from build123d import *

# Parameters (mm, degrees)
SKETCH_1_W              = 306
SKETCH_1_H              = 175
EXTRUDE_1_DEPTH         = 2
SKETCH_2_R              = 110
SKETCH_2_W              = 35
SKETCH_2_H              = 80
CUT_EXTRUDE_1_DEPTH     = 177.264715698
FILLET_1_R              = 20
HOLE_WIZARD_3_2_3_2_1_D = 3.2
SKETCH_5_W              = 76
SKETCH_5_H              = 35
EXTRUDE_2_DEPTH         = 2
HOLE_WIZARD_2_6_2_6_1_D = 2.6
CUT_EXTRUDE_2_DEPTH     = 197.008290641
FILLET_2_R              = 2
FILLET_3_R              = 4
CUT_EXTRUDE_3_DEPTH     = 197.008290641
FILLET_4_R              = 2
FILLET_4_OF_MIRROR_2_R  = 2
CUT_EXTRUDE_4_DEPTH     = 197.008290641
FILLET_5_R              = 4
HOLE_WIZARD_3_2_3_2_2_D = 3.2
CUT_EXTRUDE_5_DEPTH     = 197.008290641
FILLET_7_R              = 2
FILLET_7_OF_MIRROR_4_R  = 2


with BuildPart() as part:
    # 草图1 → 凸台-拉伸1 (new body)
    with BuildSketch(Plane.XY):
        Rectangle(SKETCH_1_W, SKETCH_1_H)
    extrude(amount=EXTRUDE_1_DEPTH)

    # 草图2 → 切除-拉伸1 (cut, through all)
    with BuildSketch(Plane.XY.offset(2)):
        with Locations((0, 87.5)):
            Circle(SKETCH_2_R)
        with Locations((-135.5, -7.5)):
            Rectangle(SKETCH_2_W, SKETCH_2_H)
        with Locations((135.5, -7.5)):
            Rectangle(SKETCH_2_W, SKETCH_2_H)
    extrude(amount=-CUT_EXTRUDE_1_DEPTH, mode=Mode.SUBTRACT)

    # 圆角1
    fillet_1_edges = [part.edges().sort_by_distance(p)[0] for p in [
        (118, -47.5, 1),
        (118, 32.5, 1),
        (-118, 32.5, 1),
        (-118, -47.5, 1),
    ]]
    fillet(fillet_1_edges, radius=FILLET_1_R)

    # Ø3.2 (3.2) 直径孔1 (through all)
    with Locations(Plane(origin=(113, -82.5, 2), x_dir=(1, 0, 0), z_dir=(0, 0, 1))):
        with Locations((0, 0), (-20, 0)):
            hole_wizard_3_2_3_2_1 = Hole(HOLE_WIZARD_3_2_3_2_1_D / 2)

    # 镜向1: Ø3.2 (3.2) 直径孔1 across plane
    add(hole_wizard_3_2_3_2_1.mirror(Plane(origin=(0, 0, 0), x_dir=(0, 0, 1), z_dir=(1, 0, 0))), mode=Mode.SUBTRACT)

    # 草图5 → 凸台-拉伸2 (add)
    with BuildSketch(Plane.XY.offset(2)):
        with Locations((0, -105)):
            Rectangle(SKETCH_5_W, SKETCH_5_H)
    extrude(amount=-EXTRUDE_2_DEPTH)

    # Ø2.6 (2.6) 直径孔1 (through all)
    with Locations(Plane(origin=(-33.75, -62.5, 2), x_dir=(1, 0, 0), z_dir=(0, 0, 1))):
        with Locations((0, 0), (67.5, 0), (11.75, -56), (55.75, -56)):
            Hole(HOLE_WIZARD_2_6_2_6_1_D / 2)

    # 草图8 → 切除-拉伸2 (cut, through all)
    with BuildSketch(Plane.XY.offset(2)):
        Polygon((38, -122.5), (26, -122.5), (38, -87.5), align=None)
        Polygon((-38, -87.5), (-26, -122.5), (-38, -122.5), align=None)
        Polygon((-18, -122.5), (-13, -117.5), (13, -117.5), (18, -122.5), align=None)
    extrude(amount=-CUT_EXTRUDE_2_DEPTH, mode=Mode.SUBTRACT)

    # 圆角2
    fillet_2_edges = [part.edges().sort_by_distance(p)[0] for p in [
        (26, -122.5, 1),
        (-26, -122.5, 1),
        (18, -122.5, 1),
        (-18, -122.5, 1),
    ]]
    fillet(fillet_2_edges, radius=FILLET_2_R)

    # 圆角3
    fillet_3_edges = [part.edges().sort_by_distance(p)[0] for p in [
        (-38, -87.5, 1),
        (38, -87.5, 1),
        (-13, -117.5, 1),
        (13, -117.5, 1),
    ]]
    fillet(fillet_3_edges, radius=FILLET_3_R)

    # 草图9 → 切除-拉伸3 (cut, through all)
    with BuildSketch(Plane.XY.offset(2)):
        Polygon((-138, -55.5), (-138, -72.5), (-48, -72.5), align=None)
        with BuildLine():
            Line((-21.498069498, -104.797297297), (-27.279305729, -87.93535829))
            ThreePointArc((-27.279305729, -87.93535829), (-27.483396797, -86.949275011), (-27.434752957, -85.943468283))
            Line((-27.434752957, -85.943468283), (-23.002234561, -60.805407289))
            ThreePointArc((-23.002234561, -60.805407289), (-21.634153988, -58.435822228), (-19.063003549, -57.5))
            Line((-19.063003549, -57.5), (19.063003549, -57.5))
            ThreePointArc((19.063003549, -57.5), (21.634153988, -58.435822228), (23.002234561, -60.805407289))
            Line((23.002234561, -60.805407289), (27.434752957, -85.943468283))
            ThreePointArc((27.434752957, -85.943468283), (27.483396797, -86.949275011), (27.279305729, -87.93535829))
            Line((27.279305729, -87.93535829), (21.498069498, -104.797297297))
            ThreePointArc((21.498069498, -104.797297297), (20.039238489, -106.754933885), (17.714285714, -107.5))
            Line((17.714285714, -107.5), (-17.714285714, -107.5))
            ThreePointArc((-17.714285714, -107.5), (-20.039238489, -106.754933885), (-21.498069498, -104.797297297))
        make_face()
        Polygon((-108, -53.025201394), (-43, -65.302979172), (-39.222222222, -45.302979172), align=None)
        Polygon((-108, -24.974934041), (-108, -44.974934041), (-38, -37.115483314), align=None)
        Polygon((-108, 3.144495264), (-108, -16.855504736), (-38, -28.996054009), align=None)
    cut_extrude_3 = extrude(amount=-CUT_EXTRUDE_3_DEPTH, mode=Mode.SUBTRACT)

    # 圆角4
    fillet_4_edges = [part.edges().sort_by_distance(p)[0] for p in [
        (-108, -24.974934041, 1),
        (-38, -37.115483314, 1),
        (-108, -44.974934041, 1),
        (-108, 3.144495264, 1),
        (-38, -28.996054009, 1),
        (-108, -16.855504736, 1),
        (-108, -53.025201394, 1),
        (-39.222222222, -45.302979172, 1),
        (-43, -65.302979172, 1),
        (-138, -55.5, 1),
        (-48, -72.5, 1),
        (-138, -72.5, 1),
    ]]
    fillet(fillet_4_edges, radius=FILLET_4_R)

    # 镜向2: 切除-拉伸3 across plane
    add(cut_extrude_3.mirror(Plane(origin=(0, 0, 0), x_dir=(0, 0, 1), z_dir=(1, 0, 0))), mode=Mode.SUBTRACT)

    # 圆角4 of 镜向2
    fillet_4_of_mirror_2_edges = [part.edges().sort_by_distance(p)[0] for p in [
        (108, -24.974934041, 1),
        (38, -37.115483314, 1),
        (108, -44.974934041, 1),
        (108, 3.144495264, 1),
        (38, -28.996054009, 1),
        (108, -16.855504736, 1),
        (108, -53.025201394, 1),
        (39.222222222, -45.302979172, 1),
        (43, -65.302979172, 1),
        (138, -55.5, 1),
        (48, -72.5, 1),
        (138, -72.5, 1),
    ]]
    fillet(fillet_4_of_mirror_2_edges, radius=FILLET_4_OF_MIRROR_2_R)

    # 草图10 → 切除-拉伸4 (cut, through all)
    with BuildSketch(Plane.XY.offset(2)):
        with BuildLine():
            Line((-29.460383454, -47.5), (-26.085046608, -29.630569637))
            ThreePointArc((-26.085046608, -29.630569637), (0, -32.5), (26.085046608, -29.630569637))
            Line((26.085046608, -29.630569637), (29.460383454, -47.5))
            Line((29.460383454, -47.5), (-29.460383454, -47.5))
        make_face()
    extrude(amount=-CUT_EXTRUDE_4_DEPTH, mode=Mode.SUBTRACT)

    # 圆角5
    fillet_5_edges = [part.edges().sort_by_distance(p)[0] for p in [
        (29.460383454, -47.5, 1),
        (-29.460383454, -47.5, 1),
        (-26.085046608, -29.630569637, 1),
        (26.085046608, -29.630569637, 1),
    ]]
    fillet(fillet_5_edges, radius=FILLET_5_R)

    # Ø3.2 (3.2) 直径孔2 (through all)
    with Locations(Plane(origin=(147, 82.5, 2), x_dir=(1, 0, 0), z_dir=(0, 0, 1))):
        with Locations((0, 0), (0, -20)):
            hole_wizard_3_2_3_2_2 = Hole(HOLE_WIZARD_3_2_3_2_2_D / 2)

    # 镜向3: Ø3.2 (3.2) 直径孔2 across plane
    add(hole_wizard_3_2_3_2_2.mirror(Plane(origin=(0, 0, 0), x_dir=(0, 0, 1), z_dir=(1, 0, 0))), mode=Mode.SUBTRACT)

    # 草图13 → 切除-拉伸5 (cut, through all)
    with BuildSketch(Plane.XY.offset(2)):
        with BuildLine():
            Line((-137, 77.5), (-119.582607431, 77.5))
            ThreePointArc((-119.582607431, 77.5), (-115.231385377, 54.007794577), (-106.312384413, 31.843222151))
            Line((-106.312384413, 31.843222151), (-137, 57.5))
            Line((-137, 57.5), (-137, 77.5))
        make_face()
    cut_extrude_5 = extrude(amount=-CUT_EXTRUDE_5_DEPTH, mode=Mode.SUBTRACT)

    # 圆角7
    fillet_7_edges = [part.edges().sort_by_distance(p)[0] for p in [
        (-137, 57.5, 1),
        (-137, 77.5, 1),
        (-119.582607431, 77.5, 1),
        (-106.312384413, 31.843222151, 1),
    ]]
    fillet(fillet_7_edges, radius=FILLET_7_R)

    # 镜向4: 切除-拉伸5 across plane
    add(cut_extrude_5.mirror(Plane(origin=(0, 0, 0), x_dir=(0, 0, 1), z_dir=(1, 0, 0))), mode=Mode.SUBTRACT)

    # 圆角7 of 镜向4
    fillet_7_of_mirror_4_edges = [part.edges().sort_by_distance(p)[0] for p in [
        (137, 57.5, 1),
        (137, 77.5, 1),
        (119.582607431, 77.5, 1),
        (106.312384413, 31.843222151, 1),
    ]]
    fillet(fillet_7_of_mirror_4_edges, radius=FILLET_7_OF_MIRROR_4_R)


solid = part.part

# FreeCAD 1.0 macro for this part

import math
import FreeCAD as App
import Part
import Sketcher

V = App.Vector
Q = App.Units.Quantity


def edges_at(feature, points):
    """Names of the edges that pass closest to the given points."""
    edges = feature.Shape.Edges
    near = lambda p: min(range(len(edges)), key=lambda i: edges[i].distToShape(Part.Vertex(*p))[0])
    return sorted({f"Edge{near(p) + 1}" for p in points})


def add_polygon(sketch, points):
    """Adds a closed chain of lines whose ends are joined by coincident constraints."""
    first, n = sketch.GeometryCount, len(points)
    for a, b in zip(points, points[1:] + points[:1]):
        sketch.addGeometry(Part.LineSegment(App.Vector(*a, 0), App.Vector(*b, 0)), False)
    for i in range(n):
        sketch.addConstraint(Sketcher.Constraint("Coincident", first + i, 2, first + (i + 1) % n, 1))

doc = App.newDocument("Part")
body = doc.addObject("PartDesign::Body", "Body")

sketch1 = body.newObject("Sketcher::SketchObject", "Sketch")
sketch1.AttachmentSupport = (doc.getObject("XY_Plane"), [""])
sketch1.MapMode = "FlatFace"
add_polygon(sketch1, [(-153, 88), (-153, -88), (153, -88), (153, 88)])
sketch1.addConstraint([
    Sketcher.Constraint("Vertical", 0),
    Sketcher.Constraint("Horizontal", 1),
    Sketcher.Constraint("Vertical", 2),
    Sketcher.Constraint("Horizontal", 3),
    Sketcher.Constraint("Symmetric", 0, 2, 2, 2, -1, 1),
    Sketcher.Constraint("DistanceX", 1, 1, 1, 2, Q("306 mm")),
    Sketcher.Constraint("DistanceY", 0, 2, 0, 1, Q("175 mm")),
])
pad1 = body.newObject("PartDesign::Pad", "Pad")
pad1.Profile = sketch1
pad1.Length = 2

sketch2 = body.newObject("Sketcher::SketchObject", "Sketch001")
sketch2.AttachmentSupport = (doc.getObject("XY_Plane"), [""])
sketch2.MapMode = "FlatFace"
sketch2.AttachmentOffset = App.Placement(V(0, 0, 2), App.Rotation())
sketch2.addGeometry(Part.Circle(V(0, 88, 0), V(0, 0, 1), 110), False)
add_polygon(sketch2, [(-153, 32), (-153, -48), (-118, -48), (-118, 32)])
add_polygon(sketch2, [(118, 32), (118, -48), (153, -48), (153, 32)])
sketch2.addConstraint([
    Sketcher.Constraint("Vertical", 1),
    Sketcher.Constraint("Horizontal", 2),
    Sketcher.Constraint("Vertical", 3),
    Sketcher.Constraint("Horizontal", 4),
    Sketcher.Constraint("Vertical", 5),
    Sketcher.Constraint("Horizontal", 6),
    Sketcher.Constraint("Vertical", 7),
    Sketcher.Constraint("Horizontal", 8),
    Sketcher.Constraint("Symmetric", 2, 2, 5, 2, -2),
    Sketcher.Constraint("Symmetric", 4, 2, 7, 2, -2),
    Sketcher.Constraint("PointOnObject", 0, 3, -2),
    Sketcher.Constraint("Diameter", 0, Q("220 mm")),
    Sketcher.Constraint("DistanceX", 2, 1, 2, 2, Q("35 mm")),
    Sketcher.Constraint("DistanceY", 1, 2, 1, 1, Q("80 mm")),
    Sketcher.Constraint("DistanceX", 1, 2, -1, 1, Q("153 mm")),
    Sketcher.Constraint("DistanceY", 1, 2, 0, 3, Q("135 mm")),
    Sketcher.Constraint("DistanceY", -1, 1, 0, 3, Q("87.5 mm")),
])
pocket1 = body.newObject("PartDesign::Pocket", "Pocket")
pocket1.Profile = sketch2
pocket1.Type = "ThroughAll"
doc.recompute()

fillet = body.newObject("PartDesign::Fillet", "Fillet")
fillet.Base = (pocket1, edges_at(pocket1, [
    (118, -47.5, 1),
    (118, 32.5, 1),
    (-118, 32.5, 1),
    (-118, -47.5, 1),
]))
fillet.Radius = 20

sketch3 = body.newObject("Sketcher::SketchObject", "Sketch002")
sketch3.AttachmentSupport = (doc.getObject("XY_Plane"), [""])
sketch3.MapMode = "FlatFace"
sketch3.AttachmentOffset = App.Placement(V(0, 0, 2), App.Rotation())
sketch3.addGeometry([
    Part.Circle(V(113, -82.5, 0), V(0, 0, 1), 1.6),
    Part.Circle(V(93, -82.5, 0), V(0, 0, 1), 1.6),
], False)
sketch3.addConstraint([
    Sketcher.Constraint("Equal", 0, 1),
    Sketcher.Constraint("Horizontal", 0, 3, 1, 3),
    Sketcher.Constraint("Diameter", 0, Q("3.2 mm")),
    Sketcher.Constraint("DistanceX", -1, 1, 0, 3, Q("113 mm")),
    Sketcher.Constraint("DistanceX", -1, 1, 1, 3, Q("93 mm")),
    Sketcher.Constraint("DistanceY", 0, 3, -1, 1, Q("82.5 mm")),
])
doc.recompute()
hole = body.newObject("PartDesign::Hole", "Hole")
hole.Profile = sketch3
hole.ThreadType = "None"
hole.Diameter = 3.2
hole.DepthType = "ThroughAll"
doc.recompute()

mirrored = body.newObject("PartDesign::Mirrored", "Mirrored")
mirrored.Originals = [hole]
mirrored.MirrorPlane = (doc.getObject("YZ_Plane"), [""])
body.Tip = mirrored

sketch4 = body.newObject("Sketcher::SketchObject", "Sketch003")
sketch4.AttachmentSupport = (doc.getObject("XY_Plane"), [""])
sketch4.MapMode = "FlatFace"
sketch4.AttachmentOffset = App.Placement(V(0, 0, 2), App.Rotation())
add_polygon(sketch4, [(-38, -88), (-38, -122), (38, -122), (38, -88)])
sketch4.addConstraint([
    Sketcher.Constraint("Vertical", 0),
    Sketcher.Constraint("Horizontal", 1),
    Sketcher.Constraint("Vertical", 2),
    Sketcher.Constraint("Horizontal", 3),
    Sketcher.Constraint("DistanceX", 1, 1, 1, 2, Q("76 mm")),
    Sketcher.Constraint("DistanceY", 0, 2, 0, 1, Q("35 mm")),
    Sketcher.Constraint("DistanceX", 0, 2, -1, 1, Q("38 mm")),
    Sketcher.Constraint("DistanceY", 0, 2, -1, 1, Q("122.5 mm")),
])
pad2 = body.newObject("PartDesign::Pad", "Pad001")
pad2.Profile = sketch4
pad2.Length = 2
pad2.Reversed = True

sketch5 = body.newObject("Sketcher::SketchObject", "Sketch004")
sketch5.AttachmentSupport = (doc.getObject("XY_Plane"), [""])
sketch5.MapMode = "FlatFace"
sketch5.AttachmentOffset = App.Placement(V(0, 0, 2), App.Rotation())
sketch5.addGeometry([
    Part.Circle(V(-33.8, -62.5, 0), V(0, 0, 1), 1.3),
    Part.Circle(V(33.8, -62.5, 0), V(0, 0, 1), 1.3),
    Part.Circle(V(-22, -118.5, 0), V(0, 0, 1), 1.3),
    Part.Circle(V(22, -118.5, 0), V(0, 0, 1), 1.3),
], False)
sketch5.addConstraint([
    Sketcher.Constraint("Equal", 0, 1),
    Sketcher.Constraint("Equal", 1, 2),
    Sketcher.Constraint("Equal", 2, 3),
    Sketcher.Constraint("Symmetric", 0, 3, 1, 3, -2),
    Sketcher.Constraint("Symmetric", 2, 3, 3, 3, -2),
    Sketcher.Constraint("Diameter", 0, Q("2.6 mm")),
    Sketcher.Constraint("DistanceX", 2, 3, -1, 1, Q("22 mm")),
    Sketcher.Constraint("DistanceY", 2, 3, 0, 3, Q("56 mm")),
    Sketcher.Constraint("DistanceY", 0, 3, -1, 1, Q("62.5 mm")),
    Sketcher.Constraint("DistanceX", 0, 3, 1, 3, Q("67.5 mm")),
])
doc.recompute()
hole2 = body.newObject("PartDesign::Hole", "Hole001")
hole2.Profile = sketch5
hole2.ThreadType = "None"
hole2.Diameter = 2.6
hole2.DepthType = "ThroughAll"

sketch6 = body.newObject("Sketcher::SketchObject", "Sketch005")
sketch6.AttachmentSupport = (doc.getObject("XY_Plane"), [""])
sketch6.MapMode = "FlatFace"
sketch6.AttachmentOffset = App.Placement(V(0, 0, 2), App.Rotation())
add_polygon(sketch6, [(26, -122), (38, -122), (38, -88)])
add_polygon(sketch6, [(-26, -122), (-38, -88), (-38, -122)])
add_polygon(sketch6, [(-13, -118), (-18, -122), (18, -122), (13, -118)])
sketch6.addConstraint([
    Sketcher.Constraint("Horizontal", 0),
    Sketcher.Constraint("Vertical", 1),
    Sketcher.Constraint("Vertical", 4),
    Sketcher.Constraint("Horizontal", 5),
    Sketcher.Constraint("Horizontal", 7),
    Sketcher.Constraint("Horizontal", 9),
    Sketcher.Constraint("Symmetric", 1, 2, 3, 2, -2),
    Sketcher.Constraint("Symmetric", 2, 2, 5, 2, -2),
    Sketcher.Constraint("Perpendicular", 6, 8),
    Sketcher.Constraint("Horizontal", 5, 2, 6, 2),
    Sketcher.Constraint("Equal", 6, 8),
    Sketcher.Constraint("DistanceX", 0, 1, 0, 2, Q("12 mm")),
    Sketcher.Constraint("DistanceX", 7, 1, 7, 2, Q("36 mm")),
    Sketcher.Constraint("DistanceX", 9, 2, 9, 1, Q("26 mm")),
    Sketcher.Constraint("DistanceY", 1, 1, 1, 2, Q("35 mm")),
    Sketcher.Constraint("DistanceX", -1, 1, 0, 2, Q("38 mm")),
    Sketcher.Constraint("DistanceX", 6, 2, -1, 1, Q("18 mm")),
    Sketcher.Constraint("DistanceY", 0, 2, -1, 1, Q("122.5 mm")),
])
pocket2 = body.newObject("PartDesign::Pocket", "Pocket001")
pocket2.Profile = sketch6
pocket2.Type = "ThroughAll"
doc.recompute()

fillet2 = body.newObject("PartDesign::Fillet", "Fillet001")
fillet2.Base = (pocket2, edges_at(pocket2, [
    (26, -122.5, 1),
    (-26, -122.5, 1),
    (18, -122.5, 1),
    (-18, -122.5, 1),
]))
fillet2.Radius = 2
doc.recompute()

fillet3 = body.newObject("PartDesign::Fillet", "Fillet002")
fillet3.Base = (fillet2, edges_at(fillet2, [
    (-38, -87.5, 1),
    (38, -87.5, 1),
    (-13, -117.5, 1),
    (13, -117.5, 1),
]))
fillet3.Radius = 4

sketch7 = body.newObject("Sketcher::SketchObject", "Sketch006")
sketch7.AttachmentSupport = (doc.getObject("XY_Plane"), [""])
sketch7.MapMode = "FlatFace"
sketch7.AttachmentOffset = App.Placement(V(0, 0, 2), App.Rotation())
add_polygon(sketch7, [(-138, -55.5), (-138, -72.5), (-48, -72.5)])
sketch7.addGeometry(Part.LineSegment(V(-27.3, -87.9, 0), V(-21.5, -104.8, 0)), False)
sketch7.addGeometry(Part.ArcOfCircle(Part.Circle(V(-17.7, -103.5, 0), V(0, 0, 1), 4), math.radians(-161), math.radians(-90)), False)
sketch7.addGeometry(Part.LineSegment(V(-17.7, -107.5, 0), V(17.7, -107.5, 0)), False)
sketch7.addGeometry(Part.ArcOfCircle(Part.Circle(V(17.7, -103.5, 0), V(0, 0, 1), 4), math.radians(-90), math.radians(-19)), False)
sketch7.addGeometry(Part.LineSegment(V(21.5, -104.8, 0), V(27.3, -87.9, 0)), False)
sketch7.addGeometry(Part.ArcOfCircle(Part.Circle(V(23.5, -86.6, 0), V(0, 0, 1), 4), math.radians(-19), math.radians(10)), False)
sketch7.addGeometry(Part.LineSegment(V(27.4, -85.9, 0), V(23, -60.8, 0)), False)
sketch7.addGeometry(Part.ArcOfCircle(Part.Circle(V(19.1, -61.5, 0), V(0, 0, 1), 4), math.radians(10), math.radians(90)), False)
sketch7.addGeometry(Part.LineSegment(V(19.1, -57.5, 0), V(-19.1, -57.5, 0)), False)
sketch7.addGeometry(Part.ArcOfCircle(Part.Circle(V(-19.1, -61.5, 0), V(0, 0, 1), 4), math.radians(90), math.radians(170)), False)
sketch7.addGeometry(Part.LineSegment(V(-23, -60.8, 0), V(-27.4, -85.9, 0)), False)
sketch7.addGeometry(Part.ArcOfCircle(Part.Circle(V(-23.5, -86.6, 0), V(0, 0, 1), 4), math.radians(170), math.radians(199)), False)
add_polygon(sketch7, [(-108, -53), (-43, -65.3), (-39.2, -45.3)])
add_polygon(sketch7, [(-108, -25), (-108, -45), (-38, -37.1)])
add_polygon(sketch7, [(-108, 3.1), (-108, -16.9), (-38, -29)])
sketch7.addConstraint([
    Sketcher.Constraint("Tangent", 3, 2, 4, 1),
    Sketcher.Constraint("Tangent", 4, 2, 5, 1),
    Sketcher.Constraint("Tangent", 5, 2, 6, 1),
    Sketcher.Constraint("Tangent", 6, 2, 7, 1),
    Sketcher.Constraint("Tangent", 7, 2, 8, 1),
    Sketcher.Constraint("Tangent", 8, 2, 9, 1),
    Sketcher.Constraint("Tangent", 9, 2, 10, 1),
    Sketcher.Constraint("Tangent", 10, 2, 11, 1),
    Sketcher.Constraint("Tangent", 11, 2, 12, 1),
    Sketcher.Constraint("Tangent", 12, 2, 13, 1),
    Sketcher.Constraint("Tangent", 13, 2, 14, 1),
    Sketcher.Constraint("Tangent", 14, 2, 3, 1),
    Sketcher.Constraint("Vertical", 0),
    Sketcher.Constraint("Horizontal", 1),
    Sketcher.Constraint("Horizontal", 5),
    Sketcher.Constraint("Horizontal", 11),
    Sketcher.Constraint("Vertical", 18),
    Sketcher.Constraint("Vertical", 21),
    Sketcher.Constraint("Equal", 4, 6),
    Sketcher.Constraint("Equal", 6, 8),
    Sketcher.Constraint("Equal", 8, 10),
    Sketcher.Constraint("Equal", 10, 12),
    Sketcher.Constraint("Equal", 12, 14),
    Sketcher.Constraint("Symmetric", 8, 3, 14, 3, -2),
    Sketcher.Constraint("Parallel", 2, 15),
    Sketcher.Constraint("Perpendicular", 15, 16),
    Sketcher.Constraint("Parallel", 17, 19),
    Sketcher.Constraint("Parallel", 20, 22),
    Sketcher.Constraint("Horizontal", 3, 2, 6, 2),
    Sketcher.Constraint("Horizontal", 9, 2, 12, 2),
    Sketcher.Constraint("Vertical", 17, 2, 18, 2),
    Sketcher.Constraint("Vertical", 20, 2, 21, 2),
    Sketcher.Constraint("Vertical", 19, 2, 22, 2),
    Sketcher.Constraint("Equal", 18, 21),
    Sketcher.Constraint("Radius", 4, Q("4 mm")),
    Sketcher.Constraint("DistanceX", 1, 1, 1, 2, Q("90 mm")),
    Sketcher.Constraint("DistanceY", 0, 2, 0, 1, Q("17 mm")),
    Sketcher.Constraint("DistanceY", 18, 2, 18, 1, Q("20 mm")),
    Sketcher.Constraint("Angle", 9, Q("100 deg")),
    Sketcher.Constraint("DistanceX", 0, 2, -1, 1, Q("138 mm")),
    Sketcher.Constraint("DistanceX", 15, 2, -1, 1, Q("43 mm")),
    Sketcher.Constraint("DistanceX", 17, 2, -1, 1, Q("108 mm")),
    Sketcher.Constraint("DistanceX", 19, 2, -1, 1, Q("38 mm")),
    Sketcher.Constraint("DistanceY", 6, 3, 10, 3, Q("42 mm")),
    Sketcher.Constraint("DistanceY", 0, 2, 12, 3, Q("11 mm")),
    Sketcher.Constraint("DistanceY", 15, 2, 16, 2, Q("20 mm")),
    Sketcher.Constraint("DistanceY", 4, 3, -1, 1, Q("103.5 mm")),
    Sketcher.Constraint("DistanceX", 5, 1, 5, 2, Q("35.428571 mm")),
    Sketcher.Constraint("DistanceY", 17, 2, -1, 1, Q("53.025201 mm")),
    Sketcher.Constraint("Distance", 3, Q("17.825478 mm")),
    Sketcher.Constraint("DistanceX", 11, 2, 11, 1, Q("38.126007 mm")),
    Sketcher.Constraint("DistanceY", 20, 2, 21, 2, Q("8.119429 mm")),
    Sketcher.Constraint("DistanceY", 18, 2, -1, 1, Q("44.974934 mm")),
])
pocket3 = body.newObject("PartDesign::Pocket", "Pocket002")
pocket3.Profile = sketch7
pocket3.Type = "ThroughAll"
doc.recompute()

fillet4 = body.newObject("PartDesign::Fillet", "Fillet003")
fillet4.Base = (pocket3, edges_at(pocket3, [
    (-108, -24.975, 1),
    (-38, -37.115, 1),
    (-108, -44.975, 1),
    (-108, 3.144, 1),
    (-38, -28.996, 1),
    (-108, -16.856, 1),
    (-108, -53.025, 1),
    (-39.222, -45.303, 1),
    (-43, -65.303, 1),
    (-138, -55.5, 1),
    (-48, -72.5, 1),
    (-138, -72.5, 1),
]))
fillet4.Radius = 2
doc.recompute()

mirrored2 = body.newObject("PartDesign::Mirrored", "Mirrored001")
mirrored2.Originals = [pocket3]
mirrored2.MirrorPlane = (doc.getObject("YZ_Plane"), [""])
body.Tip = mirrored2
doc.recompute()

fillet5 = body.newObject("PartDesign::Fillet", "Fillet004")
fillet5.Base = (mirrored2, edges_at(mirrored2, [
    (108, -24.975, 1),
    (38, -37.115, 1),
    (108, -44.975, 1),
    (108, 3.144, 1),
    (38, -28.996, 1),
    (108, -16.856, 1),
    (108, -53.025, 1),
    (39.222, -45.303, 1),
    (43, -65.303, 1),
    (138, -55.5, 1),
    (48, -72.5, 1),
    (138, -72.5, 1),
]))
fillet5.Radius = 2

sketch8 = body.newObject("Sketcher::SketchObject", "Sketch007")
sketch8.AttachmentSupport = (doc.getObject("XY_Plane"), [""])
sketch8.MapMode = "FlatFace"
sketch8.AttachmentOffset = App.Placement(V(0, 0, 2), App.Rotation())
sketch8.addGeometry([
    Part.LineSegment(V(-26, -30, 0), V(-29, -48, 0)),
    Part.LineSegment(V(-29, -48, 0), V(29, -48, 0)),
    Part.LineSegment(V(29, -48, 0), V(26, -30, 0)),
    Part.ArcOfCircle(Part.Circle(V(0, 88, 0), V(0, 0, 1), 120), math.radians(-103), math.radians(-77)),
], False)
sketch8.addConstraint([
    Sketcher.Constraint("Coincident", 0, 2, 1, 1),
    Sketcher.Constraint("Coincident", 1, 2, 2, 1),
    Sketcher.Constraint("Coincident", 2, 2, 3, 2),
    Sketcher.Constraint("Coincident", 3, 1, 0, 1),
    Sketcher.Constraint("Horizontal", 1),
    Sketcher.Constraint("Symmetric", 2, 2, 3, 1, -2),
    Sketcher.Constraint("Equal", 0, 2),
    Sketcher.Constraint("Radius", 3, Q("120 mm")),
    Sketcher.Constraint("DistanceY", 0, 2, 3, 3, Q("135 mm")),
    Sketcher.Constraint("DistanceY", -1, 1, 3, 3, Q("87.5 mm")),
    Sketcher.Constraint("Distance", 0, Q("18.185418 mm")),
    Sketcher.Constraint("DistanceX", 1, 1, 1, 2, Q("58.920767 mm")),
])
pocket4 = body.newObject("PartDesign::Pocket", "Pocket003")
pocket4.Profile = sketch8
pocket4.Type = "ThroughAll"
doc.recompute()

fillet6 = body.newObject("PartDesign::Fillet", "Fillet005")
fillet6.Base = (pocket4, edges_at(pocket4, [
    (29.46, -47.5, 1),
    (-29.46, -47.5, 1),
    (-26.085, -29.631, 1),
    (26.085, -29.631, 1),
]))
fillet6.Radius = 4

sketch9 = body.newObject("Sketcher::SketchObject", "Sketch008")
sketch9.AttachmentSupport = (doc.getObject("XY_Plane"), [""])
sketch9.MapMode = "FlatFace"
sketch9.AttachmentOffset = App.Placement(V(0, 0, 2), App.Rotation())
sketch9.addGeometry([
    Part.Circle(V(147, 82.5, 0), V(0, 0, 1), 1.6),
    Part.Circle(V(147, 62.5, 0), V(0, 0, 1), 1.6),
], False)
sketch9.addConstraint([
    Sketcher.Constraint("Equal", 0, 1),
    Sketcher.Constraint("Vertical", 0, 3, 1, 3),
    Sketcher.Constraint("Diameter", 0, Q("3.2 mm")),
    Sketcher.Constraint("DistanceX", -1, 1, 0, 3, Q("147 mm")),
    Sketcher.Constraint("DistanceY", 1, 3, 0, 3, Q("20 mm")),
    Sketcher.Constraint("DistanceY", -1, 1, 0, 3, Q("82.5 mm")),
])
doc.recompute()
hole3 = body.newObject("PartDesign::Hole", "Hole002")
hole3.Profile = sketch9
hole3.ThreadType = "None"
hole3.Diameter = 3.2
hole3.DepthType = "ThroughAll"
doc.recompute()

mirrored3 = body.newObject("PartDesign::Mirrored", "Mirrored002")
mirrored3.Originals = [hole3]
mirrored3.MirrorPlane = (doc.getObject("YZ_Plane"), [""])
body.Tip = mirrored3

sketch10 = body.newObject("Sketcher::SketchObject", "Sketch009")
sketch10.AttachmentSupport = (doc.getObject("XY_Plane"), [""])
sketch10.MapMode = "FlatFace"
sketch10.AttachmentOffset = App.Placement(V(0, 0, 2), App.Rotation())
sketch10.addGeometry([
    Part.LineSegment(V(-120, 78, 0), V(-137, 78, 0)),
    Part.LineSegment(V(-137, 78, 0), V(-137, 58, 0)),
    Part.LineSegment(V(-137, 58, 0), V(-106, 32, 0)),
    Part.ArcOfCircle(Part.Circle(V(0, 88, 0), V(0, 0, 1), 120), math.radians(-175), math.radians(-152)),
], False)
sketch10.addConstraint([
    Sketcher.Constraint("Coincident", 0, 2, 1, 1),
    Sketcher.Constraint("Coincident", 1, 2, 2, 1),
    Sketcher.Constraint("Coincident", 2, 2, 3, 2),
    Sketcher.Constraint("Coincident", 3, 1, 0, 1),
    Sketcher.Constraint("Horizontal", 0),
    Sketcher.Constraint("Vertical", 1),
    Sketcher.Constraint("PointOnObject", 3, 3, -2),
    Sketcher.Constraint("Radius", 3, Q("120 mm")),
    Sketcher.Constraint("DistanceY", 1, 2, 1, 1, Q("20 mm")),
    Sketcher.Constraint("Distance", 2, Q("40 mm")),
    Sketcher.Constraint("DistanceX", 0, 2, -1, 1, Q("137 mm")),
    Sketcher.Constraint("DistanceY", 0, 2, 3, 3, Q("10 mm")),
    Sketcher.Constraint("DistanceY", -1, 1, 3, 3, Q("87.5 mm")),
])
pocket5 = body.newObject("PartDesign::Pocket", "Pocket004")
pocket5.Profile = sketch10
pocket5.Type = "ThroughAll"
doc.recompute()

fillet7 = body.newObject("PartDesign::Fillet", "Fillet006")
fillet7.Base = (pocket5, edges_at(pocket5, [
    (-137, 57.5, 1),
    (-137, 77.5, 1),
    (-119.583, 77.5, 1),
    (-106.312, 31.843, 1),
]))
fillet7.Radius = 2
doc.recompute()

mirrored4 = body.newObject("PartDesign::Mirrored", "Mirrored003")
mirrored4.Originals = [pocket5]
mirrored4.MirrorPlane = (doc.getObject("YZ_Plane"), [""])
body.Tip = mirrored4
doc.recompute()

fillet8 = body.newObject("PartDesign::Fillet", "Fillet007")
fillet8.Base = (mirrored4, edges_at(mirrored4, [
    (137, 57.5, 1),
    (137, 77.5, 1),
    (119.583, 77.5, 1),
    (106.312, 31.843, 1),
]))
fillet8.Radius = 2

doc.recompute()
